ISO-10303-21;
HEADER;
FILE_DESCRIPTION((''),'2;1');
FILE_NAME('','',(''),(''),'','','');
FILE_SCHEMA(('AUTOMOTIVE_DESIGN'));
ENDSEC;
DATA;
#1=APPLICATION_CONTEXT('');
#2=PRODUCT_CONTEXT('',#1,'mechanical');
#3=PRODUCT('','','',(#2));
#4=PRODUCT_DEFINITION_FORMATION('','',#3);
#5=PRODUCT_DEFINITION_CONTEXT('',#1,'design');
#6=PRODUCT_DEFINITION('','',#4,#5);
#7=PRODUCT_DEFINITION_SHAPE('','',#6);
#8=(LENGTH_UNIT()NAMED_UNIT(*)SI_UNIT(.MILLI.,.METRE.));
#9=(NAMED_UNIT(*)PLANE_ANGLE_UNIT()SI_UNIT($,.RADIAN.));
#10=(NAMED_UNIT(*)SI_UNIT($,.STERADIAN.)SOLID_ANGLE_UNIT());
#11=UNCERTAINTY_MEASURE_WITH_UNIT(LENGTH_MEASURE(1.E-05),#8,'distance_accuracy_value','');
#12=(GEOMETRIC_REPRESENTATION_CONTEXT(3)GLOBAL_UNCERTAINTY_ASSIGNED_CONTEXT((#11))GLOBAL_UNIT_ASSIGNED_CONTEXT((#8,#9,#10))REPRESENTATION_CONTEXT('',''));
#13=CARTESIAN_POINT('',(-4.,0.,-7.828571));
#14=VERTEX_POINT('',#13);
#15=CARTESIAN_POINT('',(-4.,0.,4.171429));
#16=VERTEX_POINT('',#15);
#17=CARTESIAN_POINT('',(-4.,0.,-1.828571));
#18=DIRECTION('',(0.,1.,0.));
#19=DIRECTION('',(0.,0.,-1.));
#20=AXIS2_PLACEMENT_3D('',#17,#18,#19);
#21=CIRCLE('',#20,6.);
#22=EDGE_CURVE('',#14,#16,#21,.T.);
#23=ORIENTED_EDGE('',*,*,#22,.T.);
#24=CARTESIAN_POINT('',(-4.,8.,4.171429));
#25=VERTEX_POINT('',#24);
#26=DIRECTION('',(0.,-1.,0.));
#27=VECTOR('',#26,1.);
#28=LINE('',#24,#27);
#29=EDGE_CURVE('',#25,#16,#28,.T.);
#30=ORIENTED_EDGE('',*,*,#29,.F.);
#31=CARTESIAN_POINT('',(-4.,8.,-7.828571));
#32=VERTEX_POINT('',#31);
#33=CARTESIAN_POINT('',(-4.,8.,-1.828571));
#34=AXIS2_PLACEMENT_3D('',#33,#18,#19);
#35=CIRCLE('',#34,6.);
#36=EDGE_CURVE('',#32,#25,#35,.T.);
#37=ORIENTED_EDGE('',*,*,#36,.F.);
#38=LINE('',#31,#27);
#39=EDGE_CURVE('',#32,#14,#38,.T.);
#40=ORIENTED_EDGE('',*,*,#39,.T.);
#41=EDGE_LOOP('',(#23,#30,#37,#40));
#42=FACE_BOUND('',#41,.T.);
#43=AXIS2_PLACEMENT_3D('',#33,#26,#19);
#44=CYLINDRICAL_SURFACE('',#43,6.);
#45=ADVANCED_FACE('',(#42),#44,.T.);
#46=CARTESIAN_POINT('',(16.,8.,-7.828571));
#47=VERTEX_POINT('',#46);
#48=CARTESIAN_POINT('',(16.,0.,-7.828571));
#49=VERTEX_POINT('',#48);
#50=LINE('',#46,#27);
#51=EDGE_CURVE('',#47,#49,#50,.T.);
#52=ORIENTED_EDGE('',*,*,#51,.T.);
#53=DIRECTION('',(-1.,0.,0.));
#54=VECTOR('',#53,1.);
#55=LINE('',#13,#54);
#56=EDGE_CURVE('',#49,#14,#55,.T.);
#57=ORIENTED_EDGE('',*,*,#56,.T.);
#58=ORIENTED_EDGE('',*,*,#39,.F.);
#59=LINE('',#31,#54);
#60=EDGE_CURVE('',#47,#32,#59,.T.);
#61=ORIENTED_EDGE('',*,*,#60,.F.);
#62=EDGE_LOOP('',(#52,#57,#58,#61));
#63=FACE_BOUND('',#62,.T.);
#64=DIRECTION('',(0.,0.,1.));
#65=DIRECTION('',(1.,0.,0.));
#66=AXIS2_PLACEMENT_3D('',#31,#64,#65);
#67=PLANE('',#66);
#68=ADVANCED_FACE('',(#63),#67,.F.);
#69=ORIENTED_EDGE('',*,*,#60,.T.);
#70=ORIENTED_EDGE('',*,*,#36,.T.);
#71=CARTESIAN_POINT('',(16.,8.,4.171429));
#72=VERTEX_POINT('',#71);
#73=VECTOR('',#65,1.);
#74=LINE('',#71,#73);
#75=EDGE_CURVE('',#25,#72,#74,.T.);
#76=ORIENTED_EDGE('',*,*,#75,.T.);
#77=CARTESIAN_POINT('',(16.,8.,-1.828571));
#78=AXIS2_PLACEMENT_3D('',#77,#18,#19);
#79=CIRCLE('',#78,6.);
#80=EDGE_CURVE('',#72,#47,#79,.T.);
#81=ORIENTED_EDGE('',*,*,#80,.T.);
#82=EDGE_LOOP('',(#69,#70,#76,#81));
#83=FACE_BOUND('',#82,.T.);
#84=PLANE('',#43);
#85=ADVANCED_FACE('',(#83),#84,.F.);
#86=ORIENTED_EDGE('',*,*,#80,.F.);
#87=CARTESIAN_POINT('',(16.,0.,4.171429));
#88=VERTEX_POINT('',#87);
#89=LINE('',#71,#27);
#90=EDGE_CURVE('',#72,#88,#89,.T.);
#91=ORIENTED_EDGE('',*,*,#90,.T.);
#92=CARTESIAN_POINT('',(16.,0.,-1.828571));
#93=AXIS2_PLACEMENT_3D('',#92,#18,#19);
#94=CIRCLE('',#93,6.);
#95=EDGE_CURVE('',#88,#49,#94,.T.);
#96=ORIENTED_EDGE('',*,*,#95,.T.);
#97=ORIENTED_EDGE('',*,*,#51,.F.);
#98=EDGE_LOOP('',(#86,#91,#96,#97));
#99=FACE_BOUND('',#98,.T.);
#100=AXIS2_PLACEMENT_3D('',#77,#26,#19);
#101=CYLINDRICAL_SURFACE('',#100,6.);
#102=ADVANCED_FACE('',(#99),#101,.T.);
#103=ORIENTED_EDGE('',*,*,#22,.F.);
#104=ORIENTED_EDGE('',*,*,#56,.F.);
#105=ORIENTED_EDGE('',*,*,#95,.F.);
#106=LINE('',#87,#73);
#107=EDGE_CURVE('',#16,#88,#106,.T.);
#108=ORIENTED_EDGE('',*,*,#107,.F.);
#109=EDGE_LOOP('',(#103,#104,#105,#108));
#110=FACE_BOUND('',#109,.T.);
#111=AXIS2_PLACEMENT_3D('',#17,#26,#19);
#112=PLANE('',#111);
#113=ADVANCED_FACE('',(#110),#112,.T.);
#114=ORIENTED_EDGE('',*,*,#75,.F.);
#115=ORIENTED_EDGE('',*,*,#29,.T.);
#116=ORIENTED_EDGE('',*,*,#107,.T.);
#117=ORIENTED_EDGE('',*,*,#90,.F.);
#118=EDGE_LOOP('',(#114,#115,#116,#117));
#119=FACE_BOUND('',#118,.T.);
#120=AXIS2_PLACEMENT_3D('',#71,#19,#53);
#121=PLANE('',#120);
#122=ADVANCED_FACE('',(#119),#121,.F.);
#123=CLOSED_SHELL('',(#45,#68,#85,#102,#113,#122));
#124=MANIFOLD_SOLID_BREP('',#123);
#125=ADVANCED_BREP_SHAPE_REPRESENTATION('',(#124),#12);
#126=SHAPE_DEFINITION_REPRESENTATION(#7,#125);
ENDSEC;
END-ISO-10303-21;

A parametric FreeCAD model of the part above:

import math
import FreeCAD as App
import Part
import Sketcher
from FreeCAD import Vector

doc = App.newDocument("Part")
body = doc.addObject("PartDesign::Body", "Body")

sketch1 = body.newObject("Sketcher::SketchObject", "Sketch")
sketch1.AttachmentSupport = (doc.getObject("XZ_Plane"), [""])
sketch1.MapMode = "FlatFace"
sketch1.addGeometry([
    Part.LineSegment(Vector(16, -8, 0), Vector(-4, -8, 0)),
    Part.ArcOfCircle(Part.Circle(Vector(-4, -2, 0), Vector(0, 0, 1), 6), math.radians(90), math.radians(270)),
    Part.LineSegment(Vector(-4, 4, 0), Vector(16, 4, 0)),
    Part.ArcOfCircle(Part.Circle(Vector(16, -2, 0), Vector(0, 0, 1), 6), math.radians(-90), math.radians(90)),
], False)
sketch1.addConstraint([
    Sketcher.Constraint("Tangent", 0, 2, 1, 2),
    Sketcher.Constraint("Tangent", 1, 1, 2, 1),
    Sketcher.Constraint("Tangent", 2, 2, 3, 2),
    Sketcher.Constraint("Tangent", 3, 1, 0, 1),
    Sketcher.Constraint("Horizontal", 0),
    Sketcher.Constraint("Horizontal", 2),
    Sketcher.Constraint("Radius", 1, 6.0),
    Sketcher.Constraint("DistanceX", 0, 2, 0, 1, 20.0),
    Sketcher.Constraint("DistanceX", 1, 3, -1, 1, 4.0),
    Sketcher.Constraint("DistanceY", 1, 3, -1, 1, 1.828571),
])
pad1 = body.newObject("PartDesign::Pad", "Pad")
pad1.Profile = sketch1
pad1.Length = 8
pad1.Reversed = True

doc.recompute()
